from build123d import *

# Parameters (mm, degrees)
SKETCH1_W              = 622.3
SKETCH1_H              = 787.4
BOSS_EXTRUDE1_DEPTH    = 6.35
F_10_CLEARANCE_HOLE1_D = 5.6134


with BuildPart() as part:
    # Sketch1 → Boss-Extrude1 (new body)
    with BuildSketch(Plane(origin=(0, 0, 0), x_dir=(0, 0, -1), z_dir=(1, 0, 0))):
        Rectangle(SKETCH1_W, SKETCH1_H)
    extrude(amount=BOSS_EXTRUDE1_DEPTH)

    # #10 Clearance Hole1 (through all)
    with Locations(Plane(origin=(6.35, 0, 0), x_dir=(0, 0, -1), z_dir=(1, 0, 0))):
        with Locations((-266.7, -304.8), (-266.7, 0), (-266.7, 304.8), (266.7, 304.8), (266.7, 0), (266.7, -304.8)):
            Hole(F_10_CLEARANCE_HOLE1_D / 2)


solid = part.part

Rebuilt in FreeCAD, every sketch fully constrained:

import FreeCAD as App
import Part
import Sketcher
Q = App.Units.Quantity


def add_polygon(sketch, points):
    """Adds a closed chain of lines whose ends are joined by coincident constraints."""
    first, n = sketch.GeometryCount, len(points)
    for a, b in zip(points, points[1:] + points[:1]):
        sketch.addGeometry(Part.LineSegment(App.Vector(*a, 0), App.Vector(*b, 0)), False)
    for i in range(n):
        sketch.addConstraint(Sketcher.Constraint("Coincident", first + i, 2, first + (i + 1) % n, 1))

doc = App.newDocument("Part")
body = doc.addObject("PartDesign::Body", "Body")

# Sketch on YZ plane
sketch1 = doc.addObject("Sketcher::SketchObject", "Sketch")
body.addObject(sketch1)
sketch1.AttachmentSupport = (doc.YZ_Plane, [""])
sketch1.MapMode = "FlatFace"
add_polygon(sketch1, [(394, 311), (-394, 311), (-394, -311), (394, -311)])  # lines 0-3
sketch1.addConstraint([
    Sketcher.Constraint("Horizontal", 0),
    Sketcher.Constraint("Vertical", 1),
    Sketcher.Constraint("Horizontal", 2),
    Sketcher.Constraint("Vertical", 3),
    Sketcher.Constraint("Symmetric", 0, 2, 2, 2, -1, 1),
    Sketcher.Constraint("DistanceX", 0, 2, 0, 1, Q("31 in")),
    Sketcher.Constraint("DistanceY", 1, 2, 1, 1, Q("24.5 in")),
])
pad1 = doc.addObject("PartDesign::Pad", "Pad")
body.addObject(pad1)
pad1.Profile = sketch1
pad1.Length = Q("0.25 in")

# Sketch on YZ plane
sketch2 = doc.addObject("Sketcher::SketchObject", "Sketch001")
body.addObject(sketch2)
sketch2.AttachmentSupport = (doc.YZ_Plane, [""])
sketch2.MapMode = "FlatFace"
sketch2.AttachmentOffset = App.Placement(App.Vector(0, 0, 0.25 * 25.4), App.Rotation())
sketch2.addGeometry([
    Part.Circle(App.Vector(-304.8, 266.7, 0), App.Vector(0, 0, 1), 2.8),  # 0
    Part.Circle(App.Vector(0, 266.7, 0), App.Vector(0, 0, 1), 2.8),  # 1
    Part.Circle(App.Vector(304.8, 266.7, 0), App.Vector(0, 0, 1), 2.8),  # 2
    Part.Circle(App.Vector(304.8, -266.7, 0), App.Vector(0, 0, 1), 2.8),  # 3
    Part.Circle(App.Vector(0, -266.7, 0), App.Vector(0, 0, 1), 2.8),  # 4
    Part.Circle(App.Vector(-304.8, -266.7, 0), App.Vector(0, 0, 1), 2.8),  # 5
], False)
sketch2.addConstraint([
    Sketcher.Constraint("Equal", 0, 1),
    Sketcher.Constraint("Equal", 1, 2),
    Sketcher.Constraint("Equal", 2, 3),
    Sketcher.Constraint("Equal", 3, 4),
    Sketcher.Constraint("Equal", 4, 5),
    Sketcher.Constraint("Symmetric", 0, 3, 3, 3, -1, 1),
    Sketcher.Constraint("Symmetric", 1, 3, 4, 3, -1, 1),
    Sketcher.Constraint("Symmetric", 2, 3, 5, 3, -1, 1),
    Sketcher.Constraint("Symmetric", 0, 3, 2, 3, -2),
    Sketcher.Constraint("PointOnObject", 1, 3, -2),
    Sketcher.Constraint("Horizontal", 0, 3, 1, 3),
    Sketcher.Constraint("Diameter", 0, Q("0.221 in")),
    Sketcher.Constraint("DistanceX", 0, 3, -1, 1, Q("12 in")),
    Sketcher.Constraint("DistanceY", 3, 3, 2, 3, Q("21 in")),
])
doc.recompute()
hole = doc.addObject("PartDesign::Hole", "Hole")
body.addObject(hole)
hole.Profile = sketch2
hole.ThreadType = "None"
hole.Diameter = Q("0.221 in")
hole.DepthType = "ThroughAll"

doc.recompute()
